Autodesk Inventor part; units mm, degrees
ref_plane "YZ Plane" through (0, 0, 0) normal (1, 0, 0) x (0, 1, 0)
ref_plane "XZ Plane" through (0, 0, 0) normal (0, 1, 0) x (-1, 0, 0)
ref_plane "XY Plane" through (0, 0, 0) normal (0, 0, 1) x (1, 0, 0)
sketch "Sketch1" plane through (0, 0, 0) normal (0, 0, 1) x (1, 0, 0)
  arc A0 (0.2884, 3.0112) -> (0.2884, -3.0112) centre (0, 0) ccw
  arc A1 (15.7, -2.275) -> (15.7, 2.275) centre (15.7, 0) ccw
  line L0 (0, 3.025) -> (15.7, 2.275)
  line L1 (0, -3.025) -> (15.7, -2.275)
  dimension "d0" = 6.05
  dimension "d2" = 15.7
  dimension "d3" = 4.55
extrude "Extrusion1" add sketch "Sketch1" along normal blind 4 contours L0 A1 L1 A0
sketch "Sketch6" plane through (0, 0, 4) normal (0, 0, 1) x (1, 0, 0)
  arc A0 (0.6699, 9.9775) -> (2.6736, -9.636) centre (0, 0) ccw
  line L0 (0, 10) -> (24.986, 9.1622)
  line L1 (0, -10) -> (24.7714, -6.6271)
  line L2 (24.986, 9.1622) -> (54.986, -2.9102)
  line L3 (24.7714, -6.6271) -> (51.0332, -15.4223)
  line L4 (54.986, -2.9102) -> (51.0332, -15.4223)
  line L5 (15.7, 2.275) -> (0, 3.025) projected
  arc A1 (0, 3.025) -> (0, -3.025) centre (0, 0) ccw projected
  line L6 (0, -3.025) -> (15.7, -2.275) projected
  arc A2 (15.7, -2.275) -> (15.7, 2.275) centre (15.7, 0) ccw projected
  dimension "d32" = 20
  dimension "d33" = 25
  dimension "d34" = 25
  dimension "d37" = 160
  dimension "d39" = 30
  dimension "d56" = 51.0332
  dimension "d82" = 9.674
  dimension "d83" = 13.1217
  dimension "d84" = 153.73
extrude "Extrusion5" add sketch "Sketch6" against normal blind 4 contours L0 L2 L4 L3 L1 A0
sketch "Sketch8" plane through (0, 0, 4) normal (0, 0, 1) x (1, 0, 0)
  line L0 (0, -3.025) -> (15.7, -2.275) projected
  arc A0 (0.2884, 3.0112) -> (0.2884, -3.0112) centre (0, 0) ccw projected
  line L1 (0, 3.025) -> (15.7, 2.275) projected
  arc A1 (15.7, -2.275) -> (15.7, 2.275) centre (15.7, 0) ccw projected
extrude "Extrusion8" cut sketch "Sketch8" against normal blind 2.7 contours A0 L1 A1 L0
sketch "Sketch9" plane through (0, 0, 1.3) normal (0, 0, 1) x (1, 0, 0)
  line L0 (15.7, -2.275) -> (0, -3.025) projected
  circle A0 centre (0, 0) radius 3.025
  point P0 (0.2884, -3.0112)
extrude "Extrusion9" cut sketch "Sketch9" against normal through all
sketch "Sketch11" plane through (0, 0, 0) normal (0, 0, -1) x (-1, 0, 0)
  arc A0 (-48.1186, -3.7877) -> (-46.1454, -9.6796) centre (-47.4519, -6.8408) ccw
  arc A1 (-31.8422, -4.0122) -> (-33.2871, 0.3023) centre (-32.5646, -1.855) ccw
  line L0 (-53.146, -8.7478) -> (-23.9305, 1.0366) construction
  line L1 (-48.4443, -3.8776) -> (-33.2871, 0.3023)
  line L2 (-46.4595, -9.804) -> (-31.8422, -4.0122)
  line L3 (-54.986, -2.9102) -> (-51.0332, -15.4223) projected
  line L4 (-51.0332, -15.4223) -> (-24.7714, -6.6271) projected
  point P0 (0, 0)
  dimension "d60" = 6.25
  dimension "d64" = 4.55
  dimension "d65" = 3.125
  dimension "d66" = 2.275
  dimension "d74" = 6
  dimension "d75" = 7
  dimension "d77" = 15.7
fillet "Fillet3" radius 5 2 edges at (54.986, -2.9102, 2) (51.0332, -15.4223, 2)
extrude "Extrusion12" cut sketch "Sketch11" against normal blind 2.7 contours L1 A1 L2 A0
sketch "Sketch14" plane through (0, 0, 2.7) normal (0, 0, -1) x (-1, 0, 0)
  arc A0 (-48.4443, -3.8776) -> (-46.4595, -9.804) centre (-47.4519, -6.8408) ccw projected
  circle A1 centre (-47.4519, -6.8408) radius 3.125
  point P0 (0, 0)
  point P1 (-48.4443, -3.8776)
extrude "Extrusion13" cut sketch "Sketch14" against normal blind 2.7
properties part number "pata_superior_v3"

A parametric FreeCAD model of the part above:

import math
import FreeCAD as App
import Part
import Sketcher
from FreeCAD import Vector
Q = App.Units.Quantity


def edges_at(feature, points):
    """Names of the edges that pass closest to the given points."""
    edges = feature.Shape.Edges
    near = lambda p: min(range(len(edges)), key=lambda i: edges[i].distToShape(Part.Vertex(*p))[0])
    return sorted({f"Edge{near(p) + 1}" for p in points})

doc = App.newDocument("Part")
params = doc.addObject("Spreadsheet::Sheet", "Params")
for row, (alias, value) in enumerate([
    ("pad1_length", "4 mm"),
    ("sketch2_radius", "10 mm"),
    ("sketch2_length", "25 mm"),
    ("pad2_length", "4 mm"),
    ("pocket1_length", "2.7 mm"),
    ("sketch4_diameter", "6.05 mm"),
    ("fillet_radius", "5 mm"),
    ("pocket3_length", "2.7 mm"),
    ("sketch6_diameter", "6.25 mm"),
    ("pocket4_length", "2.7 mm"),
], start=1):
    params.set(f"A{row}", alias)
    params.set(f"B{row}", "=" + value)
    params.setAlias(f"B{row}", alias)

body = doc.addObject("PartDesign::Body", "Body")

# Sketch on XY plane
sketch1 = body.newObject("Sketcher::SketchObject", "Sketch")
sketch1.AttachmentSupport = (doc.getObject("XY_Plane"), [""])
sketch1.MapMode = "FlatFace"
sketch1.addGeometry(Part.LineSegment(Vector(15.7, 2.275, 0), Vector(0, 3.025, 0)), False)
sketch1.addGeometry(Part.ArcOfCircle(Part.Circle(Vector(0, 0, 0), Vector(0, 0, 1), 3.024979), math.radians(90), math.radians(270)), False)
sketch1.addGeometry(Part.LineSegment(Vector(0, -3.025, 0), Vector(15.7, -2.275, 0)), False)
sketch1.addGeometry(Part.ArcOfCircle(Part.Circle(Vector(15.7, 0, 0), Vector(0, 0, 1), 2.275), math.radians(-90), math.radians(90)), False)
sketch1.addConstraint(Sketcher.Constraint("Coincident", 0, 2, 1, 1))
sketch1.addConstraint(Sketcher.Constraint("Coincident", 1, 2, 2, 1))
sketch1.addConstraint(Sketcher.Constraint("Coincident", 2, 2, 3, 1))
sketch1.addConstraint(Sketcher.Constraint("Coincident", 3, 2, 0, 1))
sketch1.addConstraint(Sketcher.Constraint("Coincident", 1, 3, -1, 1))
sketch1.addConstraint(Sketcher.Constraint("Symmetric", 2, 2, 3, 2, -1))
sketch1.addConstraint(Sketcher.Constraint("PointOnObject", 0, 2, -2))
sketch1.addConstraint(Sketcher.Constraint("PointOnObject", 1, 2, -2))
sketch1.addConstraint(Sketcher.Constraint("Vertical", 3, 3, 2, 2))
sketch1.addConstraint(Sketcher.Constraint("Radius", 1, 3.025))
sketch1.addConstraint(Sketcher.Constraint("Radius", 3, 2.275))
sketch1.addConstraint(Sketcher.Constraint("DistanceX", -1, 1, 3, 3, 15.7))
pad1 = body.newObject("PartDesign::Pad", "Pad")
pad1.Profile = sketch1
pad1.setExpression("Length", "Params.pad1_length")

# Sketch on XY plane
sketch2 = body.newObject("Sketcher::SketchObject", "Sketch001")
sketch2.AttachmentSupport = (doc.getObject("XY_Plane"), [""])
sketch2.MapMode = "FlatFace"
sketch2.AttachmentOffset = App.Placement(Vector(0, 0, 4), App.Rotation())
sketch2.addGeometry(Part.LineSegment(Vector(24.986, 9.1622, 0), Vector(0, 10, 0)), False)
sketch2.addGeometry(Part.ArcOfCircle(Part.Circle(Vector(0, 0, 0), Vector(0, 0, 1), 9.999964), math.radians(90), math.radians(270)), False)
sketch2.addGeometry(Part.LineSegment(Vector(0, -10, 0), Vector(24.7714, -6.6271, 0)), False)
sketch2.addGeometry(Part.LineSegment(Vector(24.7714, -6.6271, 0), Vector(51.0332, -15.4223, 0)), False)
sketch2.addGeometry(Part.LineSegment(Vector(51.0332, -15.4223, 0), Vector(54.986, -2.9102, 0)), False)
sketch2.addGeometry(Part.LineSegment(Vector(54.986, -2.9102, 0), Vector(24.986, 9.1622, 0)), False)
sketch2.addGeometry(Part.LineSegment(Vector(0, 3.025, 0), Vector(15.7, 2.275, 0)), False)
sketch2.addGeometry(Part.ArcOfCircle(Part.Circle(Vector(15.7, 0, 0), Vector(0, 0, 1), 2.275), math.radians(-90), math.radians(90)), False)
sketch2.addGeometry(Part.LineSegment(Vector(15.7, -2.275, 0), Vector(0, -3.025, 0)), False)
sketch2.addGeometry(Part.ArcOfCircle(Part.Circle(Vector(0, 0, 0), Vector(0, 0, 1), 3.025), math.radians(90), math.radians(270)), False)
sketch2.addConstraint(Sketcher.Constraint("Coincident", 0, 2, 1, 1))
sketch2.addConstraint(Sketcher.Constraint("Coincident", 1, 2, 2, 1))
sketch2.addConstraint(Sketcher.Constraint("Coincident", 2, 2, 3, 1))
sketch2.addConstraint(Sketcher.Constraint("Coincident", 3, 2, 4, 1))
sketch2.addConstraint(Sketcher.Constraint("Coincident", 4, 2, 5, 1))
sketch2.addConstraint(Sketcher.Constraint("Coincident", 5, 2, 0, 1))
sketch2.addConstraint(Sketcher.Constraint("Coincident", 6, 2, 7, 2))
sketch2.addConstraint(Sketcher.Constraint("Coincident", 7, 1, 8, 1))
sketch2.addConstraint(Sketcher.Constraint("Coincident", 8, 2, 9, 2))
sketch2.addConstraint(Sketcher.Constraint("Coincident", 9, 1, 6, 1))
sketch2.addConstraint(Sketcher.Constraint("Coincident", 1, 3, -1, 1))
sketch2.addConstraint(Sketcher.Constraint("Coincident", 9, 3, -1, 1))
sketch2.addConstraint(Sketcher.Constraint("Symmetric", 6, 2, 7, 1, -1))
sketch2.addConstraint(Sketcher.Constraint("PointOnObject", 0, 2, -2))
sketch2.addConstraint(Sketcher.Constraint("PointOnObject", 1, 2, -2))
sketch2.addConstraint(Sketcher.Constraint("PointOnObject", 8, 2, -2))
sketch2.addConstraint(Sketcher.Constraint("PointOnObject", 9, 1, -2))
sketch2.addConstraint(Sketcher.Constraint("Vertical", 7, 3, 6, 2))
sketch2.addConstraint(Sketcher.Constraint("Equal", 0, 2))
sketch2.addConstraint(Sketcher.Constraint("Radius", 1, 10.0))
sketch2.addConstraint(Sketcher.Constraint("Distance", 0, 25.0))
sketch2.addConstraint(Sketcher.Constraint("Radius", 7, 2.275))
sketch2.addConstraint(Sketcher.Constraint("Radius", 9, 3.025))
sketch2.addConstraint(Sketcher.Constraint("Distance", 4, 13.1216))
sketch2.addConstraint(Sketcher.Constraint("DistanceX", -1, 1, 7, 3, 15.7))
sketch2.addConstraint(Sketcher.Constraint("DistanceX", -1, 1, 3, 2, 51.0332))
sketch2.addConstraint(Sketcher.Constraint("Angle", 0, Q("178.0795 deg")))
sketch2.addConstraint(Sketcher.Constraint("Angle", 5, Q("158.0795 deg")))
sketch2.addConstraint(Sketcher.Constraint("Distance", 5, 32.338))
sketch2.addConstraint(Sketcher.Constraint("DistanceY", 2, 2, -1, 1, 6.627))
sketch2.setExpression("Constraints[19]", "Params.sketch2_radius")
sketch2.setExpression("Constraints[20]", "Params.sketch2_length")
pad2 = body.newObject("PartDesign::Pad", "Pad001")
pad2.Profile = sketch2
pad2.setExpression("Length", "Params.pad2_length")
pad2.Reversed = True

# Sketch on XY plane
sketch3 = body.newObject("Sketcher::SketchObject", "Sketch002")
sketch3.AttachmentSupport = (doc.getObject("XY_Plane"), [""])
sketch3.MapMode = "FlatFace"
sketch3.AttachmentOffset = App.Placement(Vector(0, 0, 4), App.Rotation())
sketch3.addGeometry(Part.ArcOfCircle(Part.Circle(Vector(0, 0, 0), Vector(0, 0, 1), 3.024979), math.radians(90), math.radians(270)), False)
sketch3.addGeometry(Part.LineSegment(Vector(0, -3.025, 0), Vector(15.7, -2.275, 0)), False)
sketch3.addGeometry(Part.ArcOfCircle(Part.Circle(Vector(15.7, 0, 0), Vector(0, 0, 1), 2.275), math.radians(-90), math.radians(90)), False)
sketch3.addGeometry(Part.LineSegment(Vector(15.7, 2.275, 0), Vector(0, 3.025, 0)), False)
sketch3.addConstraint(Sketcher.Constraint("Coincident", 0, 2, 1, 1))
sketch3.addConstraint(Sketcher.Constraint("Coincident", 1, 2, 2, 1))
sketch3.addConstraint(Sketcher.Constraint("Coincident", 2, 2, 3, 1))
sketch3.addConstraint(Sketcher.Constraint("Coincident", 3, 2, 0, 1))
sketch3.addConstraint(Sketcher.Constraint("Coincident", 0, 3, -1, 1))
sketch3.addConstraint(Sketcher.Constraint("Symmetric", 1, 2, 2, 2, -1))
sketch3.addConstraint(Sketcher.Constraint("PointOnObject", 0, 2, -2))
sketch3.addConstraint(Sketcher.Constraint("PointOnObject", 3, 2, -2))
sketch3.addConstraint(Sketcher.Constraint("Vertical", 2, 3, 1, 2))
sketch3.addConstraint(Sketcher.Constraint("Radius", 0, 3.025))
sketch3.addConstraint(Sketcher.Constraint("Radius", 2, 2.275))
sketch3.addConstraint(Sketcher.Constraint("DistanceX", -1, 1, 2, 3, 15.7))
pocket1 = body.newObject("PartDesign::Pocket", "Pocket")
pocket1.Profile = sketch3
pocket1.setExpression("Length", "Params.pocket1_length")

# Sketch on XY plane
sketch4 = body.newObject("Sketcher::SketchObject", "Sketch003")
sketch4.AttachmentSupport = (doc.getObject("XY_Plane"), [""])
sketch4.MapMode = "FlatFace"
sketch4.AttachmentOffset = App.Placement(Vector(0, 0, 1.3), App.Rotation())
sketch4.addGeometry(Part.Circle(Vector(0, 0, 0), Vector(0, 0, 1), 3.025), False)
sketch4.addConstraint(Sketcher.Constraint("Coincident", 0, 3, -1, 1))
sketch4.addConstraint(Sketcher.Constraint("Diameter", 0, 6.05))
sketch4.setExpression("Constraints[1]", "Params.sketch4_diameter")
pocket2 = body.newObject("PartDesign::Pocket", "Pocket001")
pocket2.Profile = sketch4
pocket2.Type = "ThroughAll"
doc.recompute()

fillet = body.newObject("PartDesign::Fillet", "Fillet")
fillet.Base = (pocket2, edges_at(pocket2, [(54.986, -2.91, 2), (51.033, -15.422, 2)]))
fillet.setExpression("Radius", "Params.fillet_radius")

# Sketch on XY plane
sketch5 = body.newObject("Sketcher::SketchObject", "Sketch004")
sketch5.AttachmentSupport = (doc.getObject("XY_Plane"), [""])
sketch5.MapMode = "FlatFace"
sketch5.addGeometry(Part.LineSegment(Vector(33.2871, 0.3023, 0), Vector(48.4443, -3.8776, 0)), False)
sketch5.addGeometry(Part.ArcOfCircle(Part.Circle(Vector(47.4519, -6.8408, 0), Vector(0, 0, 1), 3.125045), math.radians(-108.516121), math.radians(71.483879)), False)
sketch5.addGeometry(Part.LineSegment(Vector(46.4595, -9.804, 0), Vector(31.8422, -4.0122, 0)), False)
sketch5.addGeometry(Part.ArcOfCircle(Part.Circle(Vector(32.5646, -1.855, 0), Vector(0, 0, 1), 2.274945), math.radians(71.483819), math.radians(251.485407)), False)
sketch5.addConstraint(Sketcher.Constraint("Coincident", 0, 2, 1, 2))
sketch5.addConstraint(Sketcher.Constraint("Coincident", 1, 1, 2, 1))
sketch5.addConstraint(Sketcher.Constraint("Coincident", 2, 2, 3, 2))
sketch5.addConstraint(Sketcher.Constraint("Coincident", 3, 1, 0, 1))
sketch5.addConstraint(Sketcher.Constraint("Equal", 0, 2))
sketch5.addConstraint(Sketcher.Constraint("Radius", 1, 3.125))
sketch5.addConstraint(Sketcher.Constraint("Radius", 3, 2.275))
sketch5.addConstraint(Sketcher.Constraint("Distance", 0, 15.723))
sketch5.addConstraint(Sketcher.Constraint("DistanceX", -1, 1, 1, 3, 47.452))
sketch5.addConstraint(Sketcher.Constraint("DistanceY", 3, 3, -1, 1, 1.855))
sketch5.addConstraint(Sketcher.Constraint("DistanceY", 1, 1, -1, 1, 9.804))
sketch5.addConstraint(Sketcher.Constraint("DistanceX", -1, 1, 3, 1, 33.287))
sketch5.addConstraint(Sketcher.Constraint("DistanceX", 2, 2, 0, 2, 16.602))
sketch5.addConstraint(Sketcher.Constraint("DistanceY", 1, 3, 3, 1, 7.143))
pocket3 = body.newObject("PartDesign::Pocket", "Pocket002")
pocket3.Profile = sketch5
pocket3.setExpression("Length", "Params.pocket3_length")
pocket3.Reversed = True

# Sketch on XY plane
sketch6 = body.newObject("Sketcher::SketchObject", "Sketch005")
sketch6.AttachmentSupport = (doc.getObject("XY_Plane"), [""])
sketch6.MapMode = "FlatFace"
sketch6.AttachmentOffset = App.Placement(Vector(0, 0, 2.7), App.Rotation())
sketch6.addGeometry(Part.Circle(Vector(47.4519, -6.8408, 0), Vector(0, 0, 1), 3.124966), False)
sketch6.addConstraint(Sketcher.Constraint("Diameter", 0, 6.25))
sketch6.addConstraint(Sketcher.Constraint("DistanceX", -1, 1, 0, 3, 47.452))
sketch6.addConstraint(Sketcher.Constraint("DistanceY", 0, 3, -1, 1, 6.8408))
sketch6.setExpression("Constraints[0]", "Params.sketch6_diameter")
pocket4 = body.newObject("PartDesign::Pocket", "Pocket003")
pocket4.Profile = sketch6
pocket4.setExpression("Length", "Params.pocket4_length")
pocket4.Reversed = True

doc.recompute()
